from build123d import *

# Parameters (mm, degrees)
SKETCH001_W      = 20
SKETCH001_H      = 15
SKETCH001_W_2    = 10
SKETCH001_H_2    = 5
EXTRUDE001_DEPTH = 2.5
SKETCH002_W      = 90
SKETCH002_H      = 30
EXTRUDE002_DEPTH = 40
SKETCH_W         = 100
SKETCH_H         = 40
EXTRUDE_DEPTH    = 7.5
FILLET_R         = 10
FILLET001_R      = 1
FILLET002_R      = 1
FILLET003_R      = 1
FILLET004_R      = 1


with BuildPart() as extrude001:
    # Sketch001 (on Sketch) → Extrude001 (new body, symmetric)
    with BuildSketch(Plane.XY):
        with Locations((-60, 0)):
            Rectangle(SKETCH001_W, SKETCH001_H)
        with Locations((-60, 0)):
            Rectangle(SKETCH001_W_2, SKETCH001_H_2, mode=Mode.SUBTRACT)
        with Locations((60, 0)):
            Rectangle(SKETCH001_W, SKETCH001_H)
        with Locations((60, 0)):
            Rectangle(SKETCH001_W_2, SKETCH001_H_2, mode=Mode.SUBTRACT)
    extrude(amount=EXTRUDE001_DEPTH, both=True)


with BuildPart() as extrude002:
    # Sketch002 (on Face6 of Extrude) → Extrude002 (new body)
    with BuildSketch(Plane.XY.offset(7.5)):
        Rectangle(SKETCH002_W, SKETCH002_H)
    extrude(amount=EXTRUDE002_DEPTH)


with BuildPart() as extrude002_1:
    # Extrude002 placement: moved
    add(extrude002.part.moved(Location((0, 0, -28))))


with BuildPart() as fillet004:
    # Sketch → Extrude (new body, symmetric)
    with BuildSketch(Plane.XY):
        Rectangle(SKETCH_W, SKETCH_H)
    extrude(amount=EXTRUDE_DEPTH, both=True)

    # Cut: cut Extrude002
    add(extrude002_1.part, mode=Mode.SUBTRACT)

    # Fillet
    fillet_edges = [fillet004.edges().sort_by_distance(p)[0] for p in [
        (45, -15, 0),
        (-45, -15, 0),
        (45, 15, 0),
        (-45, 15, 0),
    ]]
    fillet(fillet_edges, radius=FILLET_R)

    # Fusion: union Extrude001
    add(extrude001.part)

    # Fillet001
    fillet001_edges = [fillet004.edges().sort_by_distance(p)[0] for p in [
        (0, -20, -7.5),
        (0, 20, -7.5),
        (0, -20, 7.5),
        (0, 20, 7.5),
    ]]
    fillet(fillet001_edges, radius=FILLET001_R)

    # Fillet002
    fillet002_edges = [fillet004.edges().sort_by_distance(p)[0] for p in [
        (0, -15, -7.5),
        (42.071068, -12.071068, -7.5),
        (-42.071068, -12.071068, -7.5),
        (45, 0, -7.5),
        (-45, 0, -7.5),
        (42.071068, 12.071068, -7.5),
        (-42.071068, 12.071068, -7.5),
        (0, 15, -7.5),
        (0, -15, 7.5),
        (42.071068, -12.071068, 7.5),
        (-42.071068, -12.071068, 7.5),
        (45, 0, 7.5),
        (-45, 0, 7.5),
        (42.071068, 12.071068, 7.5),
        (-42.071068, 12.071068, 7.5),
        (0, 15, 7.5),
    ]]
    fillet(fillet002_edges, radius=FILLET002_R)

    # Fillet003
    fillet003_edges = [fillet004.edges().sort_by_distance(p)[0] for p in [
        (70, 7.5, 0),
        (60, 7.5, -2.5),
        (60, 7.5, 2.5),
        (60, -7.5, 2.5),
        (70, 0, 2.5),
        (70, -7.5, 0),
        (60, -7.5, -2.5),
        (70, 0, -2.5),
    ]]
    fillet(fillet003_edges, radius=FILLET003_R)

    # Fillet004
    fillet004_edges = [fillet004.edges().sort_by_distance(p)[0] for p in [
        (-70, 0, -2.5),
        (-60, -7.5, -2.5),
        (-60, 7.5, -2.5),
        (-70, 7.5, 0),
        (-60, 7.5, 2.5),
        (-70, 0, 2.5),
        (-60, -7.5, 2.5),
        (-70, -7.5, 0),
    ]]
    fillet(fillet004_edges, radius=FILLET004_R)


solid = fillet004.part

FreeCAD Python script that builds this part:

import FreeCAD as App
import Part
import Sketcher
from FreeCAD import Vector


def edges_at(feature, points):
    """Names of the edges that pass closest to the given points."""
    edges = feature.Shape.Edges
    near = lambda p: min(range(len(edges)), key=lambda i: edges[i].distToShape(Part.Vertex(*p))[0])
    return sorted({f"Edge{near(p) + 1}" for p in points})


def add_polygon(sketch, points):
    """Adds a closed chain of lines whose ends are joined by coincident constraints."""
    first, n = sketch.GeometryCount, len(points)
    for a, b in zip(points, points[1:] + points[:1]):
        sketch.addGeometry(Part.LineSegment(App.Vector(*a, 0), App.Vector(*b, 0)), False)
    for i in range(n):
        sketch.addConstraint(Sketcher.Constraint("Coincident", first + i, 2, first + (i + 1) % n, 1))

doc = App.newDocument("Part")
params = doc.addObject("Spreadsheet::Sheet", "Params")
for row, (alias, value) in enumerate([
    ("sketch1_width", "20 mm"),
    ("sketch1_width2", "10 mm"),
    ("sketch1_height", "15 mm"),
    ("sketch1_height2", "5 mm"),
    ("pad1_length", "5 mm"),
    ("sketch2_width", "90 mm"),
    ("sketch2_height", "30 mm"),
    ("pad2_length", "40 mm"),
    ("sketch3_width", "100 mm"),
    ("sketch3_height", "40 mm"),
    ("pad3_length", "15 mm"),
    ("fillet_radius", "10 mm"),
    ("fillet2_radius", "1 mm"),
    ("fillet3_radius", "1 mm"),
    ("fillet4_radius", "1 mm"),
    ("fillet5_radius", "1 mm"),
], start=1):
    params.set(f"A{row}", alias)
    params.set(f"B{row}", "=" + value)
    params.setAlias(f"B{row}", alias)

body = doc.addObject("PartDesign::Body", "Body")
body.AllowCompound = True

# Sketch on XY plane
sketch1 = body.newObject("Sketcher::SketchObject", "Sketch")
sketch1.AttachmentSupport = (doc.getObject("XY_Plane"), [""])
sketch1.MapMode = "FlatFace"
add_polygon(sketch1, [(-70, 7.5), (-70, -7.5), (-50, -7.5), (-50, 7.5)])  # lines 0-3
add_polygon(sketch1, [(-55, -2.5), (-65, -2.5), (-65, 2.5), (-55, 2.5)])  # lines 4-7
add_polygon(sketch1, [(50, 7.5), (50, -7.5), (70, -7.5), (70, 7.5)])  # lines 8-11
add_polygon(sketch1, [(65, -2.5), (55, -2.5), (55, 2.5), (65, 2.5)])  # lines 12-15
sketch1.addConstraint(Sketcher.Constraint("Vertical", 0))
sketch1.addConstraint(Sketcher.Constraint("Horizontal", 1))
sketch1.addConstraint(Sketcher.Constraint("Vertical", 2))
sketch1.addConstraint(Sketcher.Constraint("Horizontal", 3))
sketch1.addConstraint(Sketcher.Constraint("Horizontal", 4))
sketch1.addConstraint(Sketcher.Constraint("Vertical", 5))
sketch1.addConstraint(Sketcher.Constraint("Horizontal", 6))
sketch1.addConstraint(Sketcher.Constraint("Vertical", 7))
sketch1.addConstraint(Sketcher.Constraint("Vertical", 8))
sketch1.addConstraint(Sketcher.Constraint("Horizontal", 9))
sketch1.addConstraint(Sketcher.Constraint("Vertical", 10))
sketch1.addConstraint(Sketcher.Constraint("Horizontal", 11))
sketch1.addConstraint(Sketcher.Constraint("Horizontal", 12))
sketch1.addConstraint(Sketcher.Constraint("Vertical", 13))
sketch1.addConstraint(Sketcher.Constraint("Horizontal", 14))
sketch1.addConstraint(Sketcher.Constraint("Vertical", 15))
sketch1.addConstraint(Sketcher.Constraint("Symmetric", 2, 2, 8, 2, -1, 1))
sketch1.addConstraint(Sketcher.Constraint("Symmetric", 0, 2, 10, 2, -1, 1))
sketch1.addConstraint(Sketcher.Constraint("Symmetric", 6, 2, 12, 2, -1, 1))
sketch1.addConstraint(Sketcher.Constraint("Symmetric", 4, 2, 14, 2, -1, 1))
sketch1.addConstraint(Sketcher.Constraint("Horizontal", 1, 2, 8, 2))
sketch1.addConstraint(Sketcher.Constraint("Horizontal", 7, 2, 12, 2))
sketch1.addConstraint(Sketcher.Constraint("DistanceX", 1, 1, 1, 2, 20.0))
sketch1.addConstraint(Sketcher.Constraint("DistanceX", 4, 2, 4, 1, 10.0))
sketch1.addConstraint(Sketcher.Constraint("DistanceY", 0, 2, 0, 1, 15.0))
sketch1.addConstraint(Sketcher.Constraint("DistanceY", 5, 1, 5, 2, 5.0))
sketch1.addConstraint(Sketcher.Constraint("DistanceX", 0, 2, -1, 1, 70.0))
sketch1.addConstraint(Sketcher.Constraint("DistanceX", 4, 2, -1, 1, 65.0))
sketch1.setExpression("Constraints[38]", "Params.sketch1_width")
sketch1.setExpression("Constraints[39]", "Params.sketch1_width2")
sketch1.setExpression("Constraints[40]", "Params.sketch1_height")
sketch1.setExpression("Constraints[41]", "Params.sketch1_height2")
pad1 = body.newObject("PartDesign::Pad", "Pad")
pad1.Profile = sketch1
pad1.setExpression("Length", "Params.pad1_length")
pad1.Midplane = True
body2 = doc.addObject("PartDesign::Body", "Body001")

# Sketch on XY plane
sketch2 = body2.newObject("Sketcher::SketchObject", "Sketch001")
sketch2.AttachmentSupport = (doc.getObject("XY_Plane001"), [""])
sketch2.MapMode = "FlatFace"
sketch2.AttachmentOffset = App.Placement(Vector(0, 0, 7.5), App.Rotation())
add_polygon(sketch2, [(-45, 15), (-45, -15), (45, -15), (45, 15)])  # lines 0-3
sketch2.addConstraint(Sketcher.Constraint("Vertical", 0))
sketch2.addConstraint(Sketcher.Constraint("Horizontal", 1))
sketch2.addConstraint(Sketcher.Constraint("Vertical", 2))
sketch2.addConstraint(Sketcher.Constraint("Horizontal", 3))
sketch2.addConstraint(Sketcher.Constraint("Symmetric", 0, 2, 2, 2, -1, 1))
sketch2.addConstraint(Sketcher.Constraint("DistanceX", 1, 1, 1, 2, 90.0))
sketch2.addConstraint(Sketcher.Constraint("DistanceY", 0, 2, 0, 1, 30.0))
sketch2.setExpression("Constraints[9]", "Params.sketch2_width")
sketch2.setExpression("Constraints[10]", "Params.sketch2_height")
pad2 = body2.newObject("PartDesign::Pad", "Pad001")
pad2.Profile = sketch2
pad2.setExpression("Length", "Params.pad2_length")
body3 = doc.addObject("PartDesign::Body", "Body002")
doc.recompute()

body2.Placement = App.Placement(Vector(0, 0, -28), App.Rotation(Vector(0, 0, 1), 0))
boolean = body3.newObject("PartDesign::Boolean", "Boolean")
boolean.Type = "Fuse"
boolean.addObjects([body2])
body4 = doc.addObject("PartDesign::Body", "Body003")

# Sketch on XY plane
sketch3 = body4.newObject("Sketcher::SketchObject", "Sketch002")
sketch3.AttachmentSupport = (doc.getObject("XY_Plane003"), [""])
sketch3.MapMode = "FlatFace"
add_polygon(sketch3, [(-50, 20), (-50, -20), (50, -20), (50, 20)])  # lines 0-3
sketch3.addConstraint(Sketcher.Constraint("Vertical", 0))
sketch3.addConstraint(Sketcher.Constraint("Horizontal", 1))
sketch3.addConstraint(Sketcher.Constraint("Vertical", 2))
sketch3.addConstraint(Sketcher.Constraint("Horizontal", 3))
sketch3.addConstraint(Sketcher.Constraint("Symmetric", 0, 2, 2, 2, -1, 1))
sketch3.addConstraint(Sketcher.Constraint("DistanceX", 1, 1, 1, 2, 100.0))
sketch3.addConstraint(Sketcher.Constraint("DistanceY", 0, 2, 0, 1, 40.0))
sketch3.setExpression("Constraints[9]", "Params.sketch3_width")
sketch3.setExpression("Constraints[10]", "Params.sketch3_height")
pad3 = body4.newObject("PartDesign::Pad", "Pad002")
pad3.Profile = sketch3
pad3.setExpression("Length", "Params.pad3_length")
pad3.Midplane = True
doc.recompute()

boolean2 = body4.newObject("PartDesign::Boolean", "Boolean001")
boolean2.Type = "Cut"
boolean2.addObjects([body3])
doc.recompute()

fillet = body4.newObject("PartDesign::Fillet", "Fillet")
fillet.Base = (boolean2, edges_at(boolean2, [
    (45, -15, 0),
    (-45, -15, 0),
    (45, 15, 0),
    (-45, 15, 0),
]))
fillet.setExpression("Radius", "Params.fillet_radius")
doc.recompute()

boolean3 = body4.newObject("PartDesign::Boolean", "Boolean002")
boolean3.Type = "Fuse"
boolean3.addObjects([body])
doc.recompute()

fillet2 = body4.newObject("PartDesign::Fillet", "Fillet001")
fillet2.Base = (boolean3, edges_at(boolean3, [
    (0, -20, -7.5),
    (0, 20, -7.5),
    (0, -20, 7.5),
    (0, 20, 7.5),
]))
fillet2.setExpression("Radius", "Params.fillet2_radius")
doc.recompute()

fillet3 = body4.newObject("PartDesign::Fillet", "Fillet002")
fillet3.Base = (fillet2, edges_at(fillet2, [
    (0, -15, -7.5),
    (42.071, -12.071, -7.5),
    (-42.071, -12.071, -7.5),
    (45, 0, -7.5),
    (-45, 0, -7.5),
    (42.071, 12.071, -7.5),
    (-42.071, 12.071, -7.5),
    (0, 15, -7.5),
    (0, -15, 7.5),
    (42.071, -12.071, 7.5),
    (-42.071, -12.071, 7.5),
    (45, 0, 7.5),
    (-45, 0, 7.5),
    (42.071, 12.071, 7.5),
    (-42.071, 12.071, 7.5),
    (0, 15, 7.5),
]))
fillet3.setExpression("Radius", "Params.fillet3_radius")
doc.recompute()

fillet4 = body4.newObject("PartDesign::Fillet", "Fillet003")
fillet4.Base = (fillet3, edges_at(fillet3, [
    (70, 7.5, 0),
    (60, 7.5, -2.5),
    (60, 7.5, 2.5),
    (60, -7.5, 2.5),
    (70, 0, 2.5),
    (70, -7.5, 0),
    (60, -7.5, -2.5),
    (70, 0, -2.5),
]))
fillet4.setExpression("Radius", "Params.fillet4_radius")
doc.recompute()

fillet5 = body4.newObject("PartDesign::Fillet", "Fillet004")
fillet5.Base = (fillet4, edges_at(fillet4, [
    (-70, 0, -2.5),
    (-60, -7.5, -2.5),
    (-60, 7.5, -2.5),
    (-70, 7.5, 0),
    (-60, 7.5, 2.5),
    (-70, 0, 2.5),
    (-60, -7.5, 2.5),
    (-70, -7.5, 0),
]))
fillet5.setExpression("Radius", "Params.fillet5_radius")

doc.recompute()
